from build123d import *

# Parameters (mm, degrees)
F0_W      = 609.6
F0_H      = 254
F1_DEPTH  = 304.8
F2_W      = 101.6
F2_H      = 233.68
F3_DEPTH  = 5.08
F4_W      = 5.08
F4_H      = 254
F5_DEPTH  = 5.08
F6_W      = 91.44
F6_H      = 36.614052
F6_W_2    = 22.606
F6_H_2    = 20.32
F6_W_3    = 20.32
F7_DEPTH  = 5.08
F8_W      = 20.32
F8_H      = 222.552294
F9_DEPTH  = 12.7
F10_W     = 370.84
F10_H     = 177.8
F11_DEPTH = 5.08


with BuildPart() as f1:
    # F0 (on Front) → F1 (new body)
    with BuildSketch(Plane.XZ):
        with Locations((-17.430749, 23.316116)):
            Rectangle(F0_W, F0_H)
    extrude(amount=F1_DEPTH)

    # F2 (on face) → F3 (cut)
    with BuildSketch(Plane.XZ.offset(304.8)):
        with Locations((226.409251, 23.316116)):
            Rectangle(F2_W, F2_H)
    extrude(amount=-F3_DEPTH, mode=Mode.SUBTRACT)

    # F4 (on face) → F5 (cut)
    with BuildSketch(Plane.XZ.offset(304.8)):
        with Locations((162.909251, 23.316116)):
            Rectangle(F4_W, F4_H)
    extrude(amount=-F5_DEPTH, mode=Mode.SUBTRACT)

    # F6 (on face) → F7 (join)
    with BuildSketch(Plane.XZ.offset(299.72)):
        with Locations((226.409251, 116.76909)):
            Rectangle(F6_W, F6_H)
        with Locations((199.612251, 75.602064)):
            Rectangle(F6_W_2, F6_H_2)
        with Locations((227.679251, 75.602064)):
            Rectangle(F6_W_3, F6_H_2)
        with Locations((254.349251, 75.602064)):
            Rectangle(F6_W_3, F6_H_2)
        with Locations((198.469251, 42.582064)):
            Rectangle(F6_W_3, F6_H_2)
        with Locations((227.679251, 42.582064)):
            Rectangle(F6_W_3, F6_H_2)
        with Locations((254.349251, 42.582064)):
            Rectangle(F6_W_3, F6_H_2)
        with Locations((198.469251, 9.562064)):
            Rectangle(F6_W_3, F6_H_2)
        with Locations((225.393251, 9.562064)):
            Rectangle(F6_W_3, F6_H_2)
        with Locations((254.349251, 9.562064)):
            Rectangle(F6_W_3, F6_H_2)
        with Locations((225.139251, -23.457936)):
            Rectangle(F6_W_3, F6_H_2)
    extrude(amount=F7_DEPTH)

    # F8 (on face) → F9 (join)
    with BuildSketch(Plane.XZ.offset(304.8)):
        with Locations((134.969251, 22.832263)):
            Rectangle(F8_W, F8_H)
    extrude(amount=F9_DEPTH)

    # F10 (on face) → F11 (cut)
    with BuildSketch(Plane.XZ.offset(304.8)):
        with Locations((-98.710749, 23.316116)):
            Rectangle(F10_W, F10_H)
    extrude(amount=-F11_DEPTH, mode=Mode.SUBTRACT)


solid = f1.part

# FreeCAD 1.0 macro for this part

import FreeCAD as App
import Part
import Sketcher
Q = App.Units.Quantity

doc = App.newDocument("Part")
body = doc.addObject("PartDesign::Body", "Body")

sketch1 = doc.addObject("Sketcher::SketchObject", "Sketch")
body.addObject(sketch1)
sketch1.AttachmentSupport = (doc.XZ_Plane, [""])
sketch1.MapMode = "FlatFace"
sketch1.addGeometry([
    Part.LineSegment(App.Vector(-322.230749, 150.316116, 0), App.Vector(-322.230749, -103.683884, 0)),
    Part.LineSegment(App.Vector(-322.230749, -103.683884, 0), App.Vector(287.369251, -103.683884, 0)),
    Part.LineSegment(App.Vector(287.369251, -103.683884, 0), App.Vector(287.369251, 150.316116, 0)),
    Part.LineSegment(App.Vector(287.369251, 150.316116, 0), App.Vector(-322.230749, 150.316116, 0)),
], False)
sketch1.addConstraint([
    Sketcher.Constraint("Coincident", 0, 2, 1, 1),
    Sketcher.Constraint("Coincident", 1, 2, 2, 1),
    Sketcher.Constraint("Coincident", 2, 2, 3, 1),
    Sketcher.Constraint("Coincident", 3, 2, 0, 1),
    Sketcher.Constraint("Vertical", 0),
    Sketcher.Constraint("Horizontal", 1),
    Sketcher.Constraint("Vertical", 2),
    Sketcher.Constraint("Horizontal", 3),
    Sketcher.Constraint("DistanceX", 1, 1, 1, 2, Q("24 in")),
    Sketcher.Constraint("DistanceY", 0, 2, 0, 1, Q("10 in")),
    Sketcher.Constraint("DistanceX", 0, 2, -1, 1, Q("322.230749 mm")),
    Sketcher.Constraint("DistanceY", 0, 2, -1, 1, Q("103.683884 mm")),
])
pad1 = doc.addObject("PartDesign::Pad", "Pad")
body.addObject(pad1)
pad1.Profile = sketch1
pad1.Length = Q("12 in")

sketch2 = doc.addObject("Sketcher::SketchObject", "Sketch001")
body.addObject(sketch2)
sketch2.AttachmentSupport = (doc.XZ_Plane, [""])
sketch2.MapMode = "FlatFace"
sketch2.AttachmentOffset = App.Placement(App.Vector(0, 0, 12 * 25.4), App.Rotation())
sketch2.addGeometry([
    Part.LineSegment(App.Vector(175.609251, 140.156116, 0), App.Vector(175.609251, -93.523884, 0)),
    Part.LineSegment(App.Vector(175.609251, -93.523884, 0), App.Vector(277.209251, -93.523884, 0)),
    Part.LineSegment(App.Vector(277.209251, -93.523884, 0), App.Vector(277.209251, 140.156116, 0)),
    Part.LineSegment(App.Vector(277.209251, 140.156116, 0), App.Vector(175.609251, 140.156116, 0)),
], False)
sketch2.addConstraint([
    Sketcher.Constraint("Coincident", 0, 2, 1, 1),
    Sketcher.Constraint("Coincident", 1, 2, 2, 1),
    Sketcher.Constraint("Coincident", 2, 2, 3, 1),
    Sketcher.Constraint("Coincident", 3, 2, 0, 1),
    Sketcher.Constraint("Vertical", 0),
    Sketcher.Constraint("Horizontal", 1),
    Sketcher.Constraint("Vertical", 2),
    Sketcher.Constraint("Horizontal", 3),
    Sketcher.Constraint("DistanceX", 1, 1, 1, 2, Q("4 in")),
    Sketcher.Constraint("DistanceY", 0, 2, 0, 1, Q("9.2 in")),
    Sketcher.Constraint("DistanceX", -1, 1, 0, 2, Q("175.609251 mm")),
    Sketcher.Constraint("DistanceY", 0, 2, -1, 1, Q("93.523884 mm")),
])
pocket1 = doc.addObject("PartDesign::Pocket", "Pocket")
body.addObject(pocket1)
pocket1.Profile = sketch2
pocket1.Length = Q("0.2 in")

sketch3 = doc.addObject("Sketcher::SketchObject", "Sketch002")
body.addObject(sketch3)
sketch3.AttachmentSupport = (doc.XZ_Plane, [""])
sketch3.MapMode = "FlatFace"
sketch3.AttachmentOffset = App.Placement(App.Vector(0, 0, 12 * 25.4), App.Rotation())
sketch3.addGeometry([
    Part.LineSegment(App.Vector(160.369251, 150.316116, 0), App.Vector(160.369251, -103.683884, 0)),
    Part.LineSegment(App.Vector(160.369251, -103.683884, 0), App.Vector(165.449251, -103.683884, 0)),
    Part.LineSegment(App.Vector(165.449251, -103.683884, 0), App.Vector(165.449251, 150.316116, 0)),
    Part.LineSegment(App.Vector(165.449251, 150.316116, 0), App.Vector(160.369251, 150.316116, 0)),
], False)
sketch3.addConstraint([
    Sketcher.Constraint("Coincident", 0, 2, 1, 1),
    Sketcher.Constraint("Coincident", 1, 2, 2, 1),
    Sketcher.Constraint("Coincident", 2, 2, 3, 1),
    Sketcher.Constraint("Coincident", 3, 2, 0, 1),
    Sketcher.Constraint("Vertical", 0),
    Sketcher.Constraint("Horizontal", 1),
    Sketcher.Constraint("Vertical", 2),
    Sketcher.Constraint("Horizontal", 3),
    Sketcher.Constraint("DistanceY", 0, 2, 0, 1, Q("10 in")),
    Sketcher.Constraint("DistanceX", 1, 1, 1, 2, Q("0.2 in")),
    Sketcher.Constraint("DistanceX", -1, 1, 0, 2, Q("160.369251 mm")),
    Sketcher.Constraint("DistanceY", 0, 2, -1, 1, Q("103.683884 mm")),
])
pocket2 = doc.addObject("PartDesign::Pocket", "Pocket001")
body.addObject(pocket2)
pocket2.Profile = sketch3
pocket2.Length = Q("0.2 in")

sketch4 = doc.addObject("Sketcher::SketchObject", "Sketch003")
body.addObject(sketch4)
sketch4.AttachmentSupport = (doc.XZ_Plane, [""])
sketch4.MapMode = "FlatFace"
sketch4.AttachmentOffset = App.Placement(App.Vector(0, 0, 11.8 * 25.4), App.Rotation())
sketch4.addGeometry([
    Part.LineSegment(App.Vector(180.689251, 135.076116, 0), App.Vector(180.689251, 98.462064, 0)),
    Part.LineSegment(App.Vector(180.689251, 98.462064, 0), App.Vector(272.129251, 98.462064, 0)),
    Part.LineSegment(App.Vector(272.129251, 98.462064, 0), App.Vector(272.129251, 135.076116, 0)),
    Part.LineSegment(App.Vector(272.129251, 135.076116, 0), App.Vector(180.689251, 135.076116, 0)),
    Part.LineSegment(App.Vector(188.309251, 85.762064, 0), App.Vector(188.309251, 65.442064, 0)),
    Part.LineSegment(App.Vector(188.309251, 65.442064, 0), App.Vector(210.915251, 65.442064, 0)),
    Part.LineSegment(App.Vector(210.915251, 65.442064, 0), App.Vector(210.915251, 85.762064, 0)),
    Part.LineSegment(App.Vector(210.915251, 85.762064, 0), App.Vector(188.309251, 85.762064, 0)),
    Part.LineSegment(App.Vector(217.519251, 85.762064, 0), App.Vector(217.519251, 65.442064, 0)),
    Part.LineSegment(App.Vector(217.519251, 65.442064, 0), App.Vector(237.839251, 65.442064, 0)),
    Part.LineSegment(App.Vector(237.839251, 65.442064, 0), App.Vector(237.839251, 85.762064, 0)),
    Part.LineSegment(App.Vector(237.839251, 85.762064, 0), App.Vector(217.519251, 85.762064, 0)),
    Part.LineSegment(App.Vector(244.189251, 85.762064, 0), App.Vector(244.189251, 65.442064, 0)),
    Part.LineSegment(App.Vector(244.189251, 65.442064, 0), App.Vector(264.509251, 65.442064, 0)),
    Part.LineSegment(App.Vector(264.509251, 65.442064, 0), App.Vector(264.509251, 85.762064, 0)),
    Part.LineSegment(App.Vector(264.509251, 85.762064, 0), App.Vector(244.189251, 85.762064, 0)),
    Part.LineSegment(App.Vector(188.309251, 52.742064, 0), App.Vector(188.309251, 32.422064, 0)),
    Part.LineSegment(App.Vector(188.309251, 32.422064, 0), App.Vector(208.629251, 32.422064, 0)),
    Part.LineSegment(App.Vector(208.629251, 32.422064, 0), App.Vector(208.629251, 52.742064, 0)),
    Part.LineSegment(App.Vector(208.629251, 52.742064, 0), App.Vector(188.309251, 52.742064, 0)),
    Part.LineSegment(App.Vector(217.519251, 52.742064, 0), App.Vector(217.519251, 32.422064, 0)),
    Part.LineSegment(App.Vector(217.519251, 32.422064, 0), App.Vector(237.839251, 32.422064, 0)),
    Part.LineSegment(App.Vector(237.839251, 32.422064, 0), App.Vector(237.839251, 52.742064, 0)),
    Part.LineSegment(App.Vector(237.839251, 52.742064, 0), App.Vector(217.519251, 52.742064, 0)),
    Part.LineSegment(App.Vector(244.189251, 52.742064, 0), App.Vector(244.189251, 32.422064, 0)),
    Part.LineSegment(App.Vector(244.189251, 32.422064, 0), App.Vector(264.509251, 32.422064, 0)),
    Part.LineSegment(App.Vector(264.509251, 32.422064, 0), App.Vector(264.509251, 52.742064, 0)),
    Part.LineSegment(App.Vector(264.509251, 52.742064, 0), App.Vector(244.189251, 52.742064, 0)),
    Part.LineSegment(App.Vector(188.309251, 19.722064, 0), App.Vector(188.309251, -0.597936, 0)),
    Part.LineSegment(App.Vector(188.309251, -0.597936, 0), App.Vector(208.629251, -0.597936, 0)),
    Part.LineSegment(App.Vector(208.629251, -0.597936, 0), App.Vector(208.629251, 19.722064, 0)),
    Part.LineSegment(App.Vector(208.629251, 19.722064, 0), App.Vector(188.309251, 19.722064, 0)),
    Part.LineSegment(App.Vector(215.233251, 19.722064, 0), App.Vector(215.233251, -0.597936, 0)),
    Part.LineSegment(App.Vector(215.233251, -0.597936, 0), App.Vector(235.553251, -0.597936, 0)),
    Part.LineSegment(App.Vector(235.553251, -0.597936, 0), App.Vector(235.553251, 19.722064, 0)),
    Part.LineSegment(App.Vector(235.553251, 19.722064, 0), App.Vector(215.233251, 19.722064, 0)),
    Part.LineSegment(App.Vector(244.189251, 19.722064, 0), App.Vector(244.189251, -0.597936, 0)),
    Part.LineSegment(App.Vector(244.189251, -0.597936, 0), App.Vector(264.509251, -0.597936, 0)),
    Part.LineSegment(App.Vector(264.509251, -0.597936, 0), App.Vector(264.509251, 19.722064, 0)),
    Part.LineSegment(App.Vector(264.509251, 19.722064, 0), App.Vector(244.189251, 19.722064, 0)),
    Part.LineSegment(App.Vector(214.979251, -13.297936, 0), App.Vector(214.979251, -33.617936, 0)),
    Part.LineSegment(App.Vector(214.979251, -33.617936, 0), App.Vector(235.299251, -33.617936, 0)),
    Part.LineSegment(App.Vector(235.299251, -33.617936, 0), App.Vector(235.299251, -13.297936, 0)),
    Part.LineSegment(App.Vector(235.299251, -13.297936, 0), App.Vector(214.979251, -13.297936, 0)),
], False)
sketch4.addConstraint([
    Sketcher.Constraint("Coincident", 0, 2, 1, 1),
    Sketcher.Constraint("Coincident", 1, 2, 2, 1),
    Sketcher.Constraint("Coincident", 2, 2, 3, 1),
    Sketcher.Constraint("Coincident", 3, 2, 0, 1),
    Sketcher.Constraint("Coincident", 4, 2, 5, 1),
    Sketcher.Constraint("Coincident", 5, 2, 6, 1),
    Sketcher.Constraint("Coincident", 6, 2, 7, 1),
    Sketcher.Constraint("Coincident", 7, 2, 4, 1),
    Sketcher.Constraint("Coincident", 8, 2, 9, 1),
    Sketcher.Constraint("Coincident", 9, 2, 10, 1),
    Sketcher.Constraint("Coincident", 10, 2, 11, 1),
    Sketcher.Constraint("Coincident", 11, 2, 8, 1),
    Sketcher.Constraint("Coincident", 12, 2, 13, 1),
    Sketcher.Constraint("Coincident", 13, 2, 14, 1),
    Sketcher.Constraint("Coincident", 14, 2, 15, 1),
    Sketcher.Constraint("Coincident", 15, 2, 12, 1),
    Sketcher.Constraint("Coincident", 16, 2, 17, 1),
    Sketcher.Constraint("Coincident", 17, 2, 18, 1),
    Sketcher.Constraint("Coincident", 18, 2, 19, 1),
    Sketcher.Constraint("Coincident", 19, 2, 16, 1),
    Sketcher.Constraint("Coincident", 20, 2, 21, 1),
    Sketcher.Constraint("Coincident", 21, 2, 22, 1),
    Sketcher.Constraint("Coincident", 22, 2, 23, 1),
    Sketcher.Constraint("Coincident", 23, 2, 20, 1),
    Sketcher.Constraint("Coincident", 24, 2, 25, 1),
    Sketcher.Constraint("Coincident", 25, 2, 26, 1),
    Sketcher.Constraint("Coincident", 26, 2, 27, 1),
    Sketcher.Constraint("Coincident", 27, 2, 24, 1),
    Sketcher.Constraint("Coincident", 28, 2, 29, 1),
    Sketcher.Constraint("Coincident", 29, 2, 30, 1),
    Sketcher.Constraint("Coincident", 30, 2, 31, 1),
    Sketcher.Constraint("Coincident", 31, 2, 28, 1),
    Sketcher.Constraint("Coincident", 32, 2, 33, 1),
    Sketcher.Constraint("Coincident", 33, 2, 34, 1),
    Sketcher.Constraint("Coincident", 34, 2, 35, 1),
    Sketcher.Constraint("Coincident", 35, 2, 32, 1),
    Sketcher.Constraint("Coincident", 36, 2, 37, 1),
    Sketcher.Constraint("Coincident", 37, 2, 38, 1),
    Sketcher.Constraint("Coincident", 38, 2, 39, 1),
    Sketcher.Constraint("Coincident", 39, 2, 36, 1),
    Sketcher.Constraint("Coincident", 40, 2, 41, 1),
    Sketcher.Constraint("Coincident", 41, 2, 42, 1),
    Sketcher.Constraint("Coincident", 42, 2, 43, 1),
    Sketcher.Constraint("Coincident", 43, 2, 40, 1),
    Sketcher.Constraint("Vertical", 0),
    Sketcher.Constraint("Horizontal", 1),
    Sketcher.Constraint("Vertical", 2),
    Sketcher.Constraint("Horizontal", 3),
    Sketcher.Constraint("Vertical", 4),
    Sketcher.Constraint("Horizontal", 5),
    Sketcher.Constraint("Vertical", 6),
    Sketcher.Constraint("Horizontal", 7),
    Sketcher.Constraint("Vertical", 8),
    Sketcher.Constraint("Horizontal", 9),
    Sketcher.Constraint("Vertical", 10),
    Sketcher.Constraint("Horizontal", 11),
    Sketcher.Constraint("Vertical", 12),
    Sketcher.Constraint("Horizontal", 13),
    Sketcher.Constraint("Vertical", 14),
    Sketcher.Constraint("Horizontal", 15),
    Sketcher.Constraint("Vertical", 16),
    Sketcher.Constraint("Horizontal", 17),
    Sketcher.Constraint("Vertical", 18),
    Sketcher.Constraint("Horizontal", 19),
    Sketcher.Constraint("Vertical", 20),
    Sketcher.Constraint("Horizontal", 21),
    Sketcher.Constraint("Vertical", 22),
    Sketcher.Constraint("Horizontal", 23),
    Sketcher.Constraint("Vertical", 24),
    Sketcher.Constraint("Horizontal", 25),
    Sketcher.Constraint("Vertical", 26),
    Sketcher.Constraint("Horizontal", 27),
    Sketcher.Constraint("Vertical", 28),
    Sketcher.Constraint("Horizontal", 29),
    Sketcher.Constraint("Vertical", 30),
    Sketcher.Constraint("Horizontal", 31),
    Sketcher.Constraint("Vertical", 32),
    Sketcher.Constraint("Horizontal", 33),
    Sketcher.Constraint("Vertical", 34),
    Sketcher.Constraint("Horizontal", 35),
    Sketcher.Constraint("Vertical", 36),
    Sketcher.Constraint("Horizontal", 37),
    Sketcher.Constraint("Vertical", 38),
    Sketcher.Constraint("Horizontal", 39),
    Sketcher.Constraint("Vertical", 40),
    Sketcher.Constraint("Horizontal", 41),
    Sketcher.Constraint("Vertical", 42),
    Sketcher.Constraint("Horizontal", 43),
    Sketcher.Constraint("Horizontal", 5, 2, 8, 2),
    Sketcher.Constraint("Horizontal", 7, 2, 10, 2),
    Sketcher.Constraint("Horizontal", 9, 2, 12, 2),
    Sketcher.Constraint("Horizontal", 11, 2, 14, 2),
    Sketcher.Constraint("Horizontal", 17, 2, 20, 2),
    Sketcher.Constraint("Horizontal", 19, 2, 22, 2),
    Sketcher.Constraint("Horizontal", 21, 2, 24, 2),
    Sketcher.Constraint("Horizontal", 23, 2, 26, 2),
    Sketcher.Constraint("Horizontal", 29, 2, 32, 2),
    Sketcher.Constraint("Horizontal", 31, 2, 34, 2),
    Sketcher.Constraint("Horizontal", 33, 2, 36, 2),
    Sketcher.Constraint("Horizontal", 35, 2, 38, 2),
    Sketcher.Constraint("Vertical", 7, 2, 16, 2),
    Sketcher.Constraint("Vertical", 11, 2, 20, 2),
    Sketcher.Constraint("Vertical", 10, 2, 21, 2),
    Sketcher.Constraint("Vertical", 15, 2, 24, 2),
    Sketcher.Constraint("Vertical", 14, 2, 25, 2),
    Sketcher.Constraint("Vertical", 19, 2, 28, 2),
    Sketcher.Constraint("Vertical", 18, 2, 29, 2),
    Sketcher.Constraint("Vertical", 27, 2, 36, 2),
    Sketcher.Constraint("Vertical", 26, 2, 37, 2),
    Sketcher.Constraint("Equal", 11, 13),
    Sketcher.Constraint("Equal", 15, 17),
    Sketcher.Constraint("Equal", 31, 33),
    Sketcher.Constraint("Equal", 39, 41),
    Sketcher.Constraint("Equal", 43, 4),
    Sketcher.Constraint("Equal", 14, 16),
    Sketcher.Constraint("Equal", 26, 28),
    Sketcher.Constraint("Equal", 38, 40),
    Sketcher.Constraint("DistanceX", 1, 1, 1, 2, Q("3.6 in")),
    Sketcher.Constraint("DistanceX", 9, 1, 9, 2, Q("0.8 in")),
    Sketcher.Constraint("DistanceX", 5, 1, 5, 2, Q("0.89 in")),
    Sketcher.Constraint("DistanceX", 0, 2, 4, 2, Q("0.3 in")),
    Sketcher.Constraint("DistanceY", 4, 2, 0, 2, Q("1.3 in")),
    Sketcher.Constraint("DistanceX", 13, 2, 1, 2, Q("0.3 in")),
    Sketcher.Constraint("DistanceY", 16, 2, 4, 2, Q("1.3 in")),
    Sketcher.Constraint("DistanceY", 28, 2, 16, 2, Q("1.3 in")),
    Sketcher.Constraint("DistanceY", 40, 2, 32, 2, Q("1.3 in")),
    Sketcher.Constraint("DistanceX", 5, 2, 8, 2, Q("0.26 in")),
    Sketcher.Constraint("DistanceX", 29, 2, 32, 2, Q("0.26 in")),
    Sketcher.Constraint("DistanceX", 40, 2, 32, 2, Q("0.01 in")),
    Sketcher.Constraint("DistanceY", 0, 2, 0, 1, Q("36.614052 mm")),
    Sketcher.Constraint("DistanceX", -1, 1, 0, 2, Q("180.689251 mm")),
    Sketcher.Constraint("DistanceY", -1, 1, 0, 2, Q("98.462064 mm")),
])
pad2 = doc.addObject("PartDesign::Pad", "Pad001")
body.addObject(pad2)
pad2.Profile = sketch4
pad2.Length = Q("0.2 in")

sketch5 = doc.addObject("Sketcher::SketchObject", "Sketch004")
body.addObject(sketch5)
sketch5.AttachmentSupport = (doc.XZ_Plane, [""])
sketch5.MapMode = "FlatFace"
sketch5.AttachmentOffset = App.Placement(App.Vector(0, 0, 12 * 25.4), App.Rotation())
sketch5.addGeometry([
    Part.LineSegment(App.Vector(124.809251, 134.10841, 0), App.Vector(124.809251, -88.443884, 0)),
    Part.LineSegment(App.Vector(124.809251, -88.443884, 0), App.Vector(145.129251, -88.443884, 0)),
    Part.LineSegment(App.Vector(145.129251, -88.443884, 0), App.Vector(145.129251, 134.10841, 0)),
    Part.LineSegment(App.Vector(145.129251, 134.10841, 0), App.Vector(124.809251, 134.10841, 0)),
], False)
sketch5.addConstraint([
    Sketcher.Constraint("Coincident", 0, 2, 1, 1),
    Sketcher.Constraint("Coincident", 1, 2, 2, 1),
    Sketcher.Constraint("Coincident", 2, 2, 3, 1),
    Sketcher.Constraint("Coincident", 3, 2, 0, 1),
    Sketcher.Constraint("Vertical", 0),
    Sketcher.Constraint("Horizontal", 1),
    Sketcher.Constraint("Vertical", 2),
    Sketcher.Constraint("Horizontal", 3),
    Sketcher.Constraint("DistanceX", 1, 1, 1, 2, Q("0.8 in")),
    Sketcher.Constraint("DistanceY", 0, 2, 0, 1, Q("222.552294 mm")),
    Sketcher.Constraint("DistanceX", -1, 1, 0, 2, Q("124.809251 mm")),
    Sketcher.Constraint("DistanceY", -1, 1, 2, 2, Q("134.10841 mm")),
])
pad3 = doc.addObject("PartDesign::Pad", "Pad002")
body.addObject(pad3)
pad3.Profile = sketch5
pad3.Length = Q("0.5 in")

sketch6 = doc.addObject("Sketcher::SketchObject", "Sketch005")
body.addObject(sketch6)
sketch6.AttachmentSupport = (doc.XZ_Plane, [""])
sketch6.MapMode = "FlatFace"
sketch6.AttachmentOffset = App.Placement(App.Vector(0, 0, 12 * 25.4), App.Rotation())
sketch6.addGeometry([
    Part.LineSegment(App.Vector(-284.130749, 112.216116, 0), App.Vector(-284.130749, -65.583884, 0)),
    Part.LineSegment(App.Vector(-284.130749, -65.583884, 0), App.Vector(86.709251, -65.583884, 0)),
    Part.LineSegment(App.Vector(86.709251, -65.583884, 0), App.Vector(86.709251, 112.216116, 0)),
    Part.LineSegment(App.Vector(86.709251, 112.216116, 0), App.Vector(-284.130749, 112.216116, 0)),
], False)
sketch6.addConstraint([
    Sketcher.Constraint("Coincident", 0, 2, 1, 1),
    Sketcher.Constraint("Coincident", 1, 2, 2, 1),
    Sketcher.Constraint("Coincident", 2, 2, 3, 1),
    Sketcher.Constraint("Coincident", 3, 2, 0, 1),
    Sketcher.Constraint("Vertical", 0),
    Sketcher.Constraint("Horizontal", 1),
    Sketcher.Constraint("Vertical", 2),
    Sketcher.Constraint("Horizontal", 3),
    Sketcher.Constraint("DistanceY", 0, 2, 0, 1, Q("7 in")),
    Sketcher.Constraint("DistanceX", 1, 1, 1, 2, Q("14.6 in")),
    Sketcher.Constraint("DistanceX", 0, 2, -1, 1, Q("284.130749 mm")),
    Sketcher.Constraint("DistanceY", 0, 2, -1, 1, Q("65.583884 mm")),
])
pocket3 = doc.addObject("PartDesign::Pocket", "Pocket002")
body.addObject(pocket3)
pocket3.Profile = sketch6
pocket3.Length = Q("0.2 in")

doc.recompute()
